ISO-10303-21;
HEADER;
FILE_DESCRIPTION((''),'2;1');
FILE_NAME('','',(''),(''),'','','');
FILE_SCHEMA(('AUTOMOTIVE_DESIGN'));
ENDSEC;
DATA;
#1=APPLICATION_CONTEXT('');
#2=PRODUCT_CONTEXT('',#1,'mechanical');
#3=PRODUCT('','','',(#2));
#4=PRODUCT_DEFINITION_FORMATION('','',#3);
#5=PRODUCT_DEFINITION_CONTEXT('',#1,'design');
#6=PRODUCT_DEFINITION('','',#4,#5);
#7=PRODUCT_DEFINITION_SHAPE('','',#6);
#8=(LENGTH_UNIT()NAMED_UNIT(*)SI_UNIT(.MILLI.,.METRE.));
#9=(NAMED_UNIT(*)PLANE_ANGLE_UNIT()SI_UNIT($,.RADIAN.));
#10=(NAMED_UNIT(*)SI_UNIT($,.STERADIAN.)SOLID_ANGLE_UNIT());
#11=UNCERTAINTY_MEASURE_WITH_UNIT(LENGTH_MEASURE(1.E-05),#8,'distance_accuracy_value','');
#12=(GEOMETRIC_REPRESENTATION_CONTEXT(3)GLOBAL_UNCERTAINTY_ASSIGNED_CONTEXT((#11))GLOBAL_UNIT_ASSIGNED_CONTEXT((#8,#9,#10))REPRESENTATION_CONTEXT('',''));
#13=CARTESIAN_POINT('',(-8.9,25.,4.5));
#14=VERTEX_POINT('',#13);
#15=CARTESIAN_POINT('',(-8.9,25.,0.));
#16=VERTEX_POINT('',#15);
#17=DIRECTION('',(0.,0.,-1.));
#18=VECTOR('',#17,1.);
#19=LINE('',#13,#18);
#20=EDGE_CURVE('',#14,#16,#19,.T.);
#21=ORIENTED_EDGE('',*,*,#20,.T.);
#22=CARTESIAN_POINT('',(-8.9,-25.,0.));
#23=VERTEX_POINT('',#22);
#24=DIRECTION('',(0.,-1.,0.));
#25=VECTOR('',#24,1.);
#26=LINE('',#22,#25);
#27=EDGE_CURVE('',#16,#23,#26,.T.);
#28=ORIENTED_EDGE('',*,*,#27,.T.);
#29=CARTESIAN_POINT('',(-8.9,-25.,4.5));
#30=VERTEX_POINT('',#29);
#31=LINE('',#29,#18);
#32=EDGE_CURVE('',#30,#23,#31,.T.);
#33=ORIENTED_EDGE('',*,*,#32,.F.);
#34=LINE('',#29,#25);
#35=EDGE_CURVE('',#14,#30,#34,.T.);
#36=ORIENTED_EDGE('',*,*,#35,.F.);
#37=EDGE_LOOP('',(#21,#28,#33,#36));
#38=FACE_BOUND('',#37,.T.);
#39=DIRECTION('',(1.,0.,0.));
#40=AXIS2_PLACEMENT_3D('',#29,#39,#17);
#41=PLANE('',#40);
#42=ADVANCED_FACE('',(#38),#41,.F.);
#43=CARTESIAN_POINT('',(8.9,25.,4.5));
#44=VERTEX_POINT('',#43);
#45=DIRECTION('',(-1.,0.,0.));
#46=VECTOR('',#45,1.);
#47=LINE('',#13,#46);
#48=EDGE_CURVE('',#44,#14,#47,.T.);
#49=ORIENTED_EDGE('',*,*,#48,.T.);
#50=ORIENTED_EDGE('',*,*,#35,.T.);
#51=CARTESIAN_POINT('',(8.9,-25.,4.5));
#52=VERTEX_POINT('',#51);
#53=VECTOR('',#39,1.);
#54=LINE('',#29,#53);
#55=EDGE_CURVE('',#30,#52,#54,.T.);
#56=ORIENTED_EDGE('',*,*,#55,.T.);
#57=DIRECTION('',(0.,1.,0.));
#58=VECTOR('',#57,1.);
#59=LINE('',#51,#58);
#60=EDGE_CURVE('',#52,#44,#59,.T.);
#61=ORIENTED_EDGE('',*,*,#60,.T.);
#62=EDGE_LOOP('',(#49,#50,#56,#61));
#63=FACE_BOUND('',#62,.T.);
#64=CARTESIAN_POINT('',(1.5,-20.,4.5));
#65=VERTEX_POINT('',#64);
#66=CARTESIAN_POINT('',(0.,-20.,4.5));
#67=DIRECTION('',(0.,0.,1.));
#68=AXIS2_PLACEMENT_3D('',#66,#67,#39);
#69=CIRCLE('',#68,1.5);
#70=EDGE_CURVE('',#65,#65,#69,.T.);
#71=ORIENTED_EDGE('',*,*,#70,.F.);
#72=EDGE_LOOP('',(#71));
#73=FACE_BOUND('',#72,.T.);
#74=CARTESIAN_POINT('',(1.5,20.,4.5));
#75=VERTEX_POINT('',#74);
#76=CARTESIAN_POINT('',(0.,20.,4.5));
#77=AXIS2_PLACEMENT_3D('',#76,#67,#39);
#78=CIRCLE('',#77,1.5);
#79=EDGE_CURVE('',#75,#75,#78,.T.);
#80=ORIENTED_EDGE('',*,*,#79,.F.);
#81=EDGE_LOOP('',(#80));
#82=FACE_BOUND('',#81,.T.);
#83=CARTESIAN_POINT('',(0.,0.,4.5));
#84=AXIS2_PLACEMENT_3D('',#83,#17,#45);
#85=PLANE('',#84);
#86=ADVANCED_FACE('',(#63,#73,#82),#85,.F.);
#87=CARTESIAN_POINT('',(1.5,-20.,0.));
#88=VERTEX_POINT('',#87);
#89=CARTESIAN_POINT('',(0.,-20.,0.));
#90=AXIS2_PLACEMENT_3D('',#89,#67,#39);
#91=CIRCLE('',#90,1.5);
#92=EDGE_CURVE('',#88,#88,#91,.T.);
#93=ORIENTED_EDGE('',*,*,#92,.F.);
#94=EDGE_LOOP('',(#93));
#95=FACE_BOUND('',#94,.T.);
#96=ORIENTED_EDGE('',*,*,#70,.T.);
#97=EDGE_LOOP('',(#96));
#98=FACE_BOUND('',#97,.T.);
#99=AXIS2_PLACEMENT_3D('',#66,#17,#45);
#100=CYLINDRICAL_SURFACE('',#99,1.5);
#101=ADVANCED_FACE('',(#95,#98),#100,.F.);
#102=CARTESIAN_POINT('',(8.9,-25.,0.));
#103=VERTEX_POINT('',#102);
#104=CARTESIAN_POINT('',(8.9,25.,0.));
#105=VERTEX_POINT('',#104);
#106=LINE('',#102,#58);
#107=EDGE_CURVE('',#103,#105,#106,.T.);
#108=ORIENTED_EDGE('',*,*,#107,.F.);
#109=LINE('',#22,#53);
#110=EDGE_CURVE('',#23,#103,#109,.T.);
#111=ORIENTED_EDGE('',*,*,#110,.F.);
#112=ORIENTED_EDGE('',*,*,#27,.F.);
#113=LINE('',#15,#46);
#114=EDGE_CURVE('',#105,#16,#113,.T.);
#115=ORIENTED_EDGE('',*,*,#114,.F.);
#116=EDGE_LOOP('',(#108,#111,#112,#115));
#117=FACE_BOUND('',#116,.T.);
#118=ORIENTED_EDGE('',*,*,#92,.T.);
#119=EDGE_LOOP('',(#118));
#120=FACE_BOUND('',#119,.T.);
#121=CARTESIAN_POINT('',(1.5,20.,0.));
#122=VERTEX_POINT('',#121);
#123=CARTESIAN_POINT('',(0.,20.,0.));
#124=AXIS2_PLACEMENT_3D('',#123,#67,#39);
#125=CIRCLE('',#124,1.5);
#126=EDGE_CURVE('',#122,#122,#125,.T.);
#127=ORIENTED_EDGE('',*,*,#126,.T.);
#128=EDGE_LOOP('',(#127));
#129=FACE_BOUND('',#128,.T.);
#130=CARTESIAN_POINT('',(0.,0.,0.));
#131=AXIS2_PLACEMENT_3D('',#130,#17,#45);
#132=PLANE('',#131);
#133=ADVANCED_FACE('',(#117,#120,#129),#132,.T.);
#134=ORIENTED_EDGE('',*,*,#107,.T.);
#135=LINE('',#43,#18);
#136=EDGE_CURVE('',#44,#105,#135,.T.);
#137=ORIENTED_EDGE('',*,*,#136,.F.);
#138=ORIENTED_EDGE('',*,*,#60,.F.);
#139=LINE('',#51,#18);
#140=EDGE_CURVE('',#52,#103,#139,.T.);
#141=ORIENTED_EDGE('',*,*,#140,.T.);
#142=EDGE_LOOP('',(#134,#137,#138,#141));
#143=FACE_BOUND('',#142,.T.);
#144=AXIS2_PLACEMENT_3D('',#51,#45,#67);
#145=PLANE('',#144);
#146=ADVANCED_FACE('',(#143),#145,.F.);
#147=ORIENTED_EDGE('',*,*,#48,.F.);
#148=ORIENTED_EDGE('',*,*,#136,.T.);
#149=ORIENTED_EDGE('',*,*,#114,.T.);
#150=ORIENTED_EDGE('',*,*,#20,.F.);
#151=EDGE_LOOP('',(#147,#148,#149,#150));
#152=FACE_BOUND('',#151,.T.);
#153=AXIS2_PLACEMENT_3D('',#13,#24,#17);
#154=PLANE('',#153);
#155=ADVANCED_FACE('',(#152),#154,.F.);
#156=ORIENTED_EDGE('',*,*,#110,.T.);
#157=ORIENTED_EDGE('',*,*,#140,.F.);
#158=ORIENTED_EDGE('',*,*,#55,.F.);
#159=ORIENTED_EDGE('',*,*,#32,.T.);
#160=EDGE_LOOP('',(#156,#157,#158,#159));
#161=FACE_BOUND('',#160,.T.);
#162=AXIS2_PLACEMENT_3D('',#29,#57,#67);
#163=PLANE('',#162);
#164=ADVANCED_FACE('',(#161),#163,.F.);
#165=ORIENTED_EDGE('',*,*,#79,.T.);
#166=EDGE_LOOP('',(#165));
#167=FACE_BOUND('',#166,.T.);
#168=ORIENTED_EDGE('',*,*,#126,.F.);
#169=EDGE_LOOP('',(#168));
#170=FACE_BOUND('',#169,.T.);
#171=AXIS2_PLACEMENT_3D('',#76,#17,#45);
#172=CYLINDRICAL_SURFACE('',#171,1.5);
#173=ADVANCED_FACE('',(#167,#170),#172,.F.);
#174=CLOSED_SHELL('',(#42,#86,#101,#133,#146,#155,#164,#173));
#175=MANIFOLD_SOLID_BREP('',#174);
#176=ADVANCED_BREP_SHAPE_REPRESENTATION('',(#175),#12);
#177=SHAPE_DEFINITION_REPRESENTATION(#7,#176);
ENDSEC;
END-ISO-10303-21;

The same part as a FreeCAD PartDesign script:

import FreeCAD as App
import Part
import Sketcher


def add_polygon(sketch, points):
    """Adds a closed chain of lines whose ends are joined by coincident constraints."""
    first, n = sketch.GeometryCount, len(points)
    for a, b in zip(points, points[1:] + points[:1]):
        sketch.addGeometry(Part.LineSegment(App.Vector(*a, 0), App.Vector(*b, 0)), False)
    for i in range(n):
        sketch.addConstraint(Sketcher.Constraint("Coincident", first + i, 2, first + (i + 1) % n, 1))

doc = App.newDocument("Part")
body = doc.addObject("PartDesign::Body", "Body")

sketch1 = body.newObject("Sketcher::SketchObject", "Sketch")
sketch1.AttachmentSupport = (doc.getObject("XY_Plane"), [""])
sketch1.MapMode = "FlatFace"
add_polygon(sketch1, [(-8.9, 25), (-8.9, -25), (8.9, -25), (8.9, 25)])
sketch1.addGeometry(Part.Circle(App.Vector(0, -20, 0), App.Vector(0, 0, 1), 1.5), False)
sketch1.addGeometry(Part.Circle(App.Vector(0, 20, 0), App.Vector(0, 0, 1), 1.5), False)
sketch1.addConstraint([
    Sketcher.Constraint("Vertical", 0),
    Sketcher.Constraint("Horizontal", 1),
    Sketcher.Constraint("Vertical", 2),
    Sketcher.Constraint("Horizontal", 3),
    Sketcher.Constraint("Equal", 4, 5),
    Sketcher.Constraint("Symmetric", 4, 3, 5, 3, -1, 1),
    Sketcher.Constraint("Symmetric", 0, 2, 2, 2, -1, 1),
    Sketcher.Constraint("PointOnObject", 4, 3, -2),
    Sketcher.Constraint("Diameter", 4, 3.0),
    Sketcher.Constraint("DistanceY", 0, 2, 0, 1, 50.0),
    Sketcher.Constraint("DistanceX", 1, 1, 1, 2, 17.8),
    Sketcher.Constraint("DistanceY", 4, 3, -1, 1, 20.0),
])
pad1 = body.newObject("PartDesign::Pad", "Pad")
pad1.Profile = sketch1
pad1.Length = 4.5

doc.recompute()
